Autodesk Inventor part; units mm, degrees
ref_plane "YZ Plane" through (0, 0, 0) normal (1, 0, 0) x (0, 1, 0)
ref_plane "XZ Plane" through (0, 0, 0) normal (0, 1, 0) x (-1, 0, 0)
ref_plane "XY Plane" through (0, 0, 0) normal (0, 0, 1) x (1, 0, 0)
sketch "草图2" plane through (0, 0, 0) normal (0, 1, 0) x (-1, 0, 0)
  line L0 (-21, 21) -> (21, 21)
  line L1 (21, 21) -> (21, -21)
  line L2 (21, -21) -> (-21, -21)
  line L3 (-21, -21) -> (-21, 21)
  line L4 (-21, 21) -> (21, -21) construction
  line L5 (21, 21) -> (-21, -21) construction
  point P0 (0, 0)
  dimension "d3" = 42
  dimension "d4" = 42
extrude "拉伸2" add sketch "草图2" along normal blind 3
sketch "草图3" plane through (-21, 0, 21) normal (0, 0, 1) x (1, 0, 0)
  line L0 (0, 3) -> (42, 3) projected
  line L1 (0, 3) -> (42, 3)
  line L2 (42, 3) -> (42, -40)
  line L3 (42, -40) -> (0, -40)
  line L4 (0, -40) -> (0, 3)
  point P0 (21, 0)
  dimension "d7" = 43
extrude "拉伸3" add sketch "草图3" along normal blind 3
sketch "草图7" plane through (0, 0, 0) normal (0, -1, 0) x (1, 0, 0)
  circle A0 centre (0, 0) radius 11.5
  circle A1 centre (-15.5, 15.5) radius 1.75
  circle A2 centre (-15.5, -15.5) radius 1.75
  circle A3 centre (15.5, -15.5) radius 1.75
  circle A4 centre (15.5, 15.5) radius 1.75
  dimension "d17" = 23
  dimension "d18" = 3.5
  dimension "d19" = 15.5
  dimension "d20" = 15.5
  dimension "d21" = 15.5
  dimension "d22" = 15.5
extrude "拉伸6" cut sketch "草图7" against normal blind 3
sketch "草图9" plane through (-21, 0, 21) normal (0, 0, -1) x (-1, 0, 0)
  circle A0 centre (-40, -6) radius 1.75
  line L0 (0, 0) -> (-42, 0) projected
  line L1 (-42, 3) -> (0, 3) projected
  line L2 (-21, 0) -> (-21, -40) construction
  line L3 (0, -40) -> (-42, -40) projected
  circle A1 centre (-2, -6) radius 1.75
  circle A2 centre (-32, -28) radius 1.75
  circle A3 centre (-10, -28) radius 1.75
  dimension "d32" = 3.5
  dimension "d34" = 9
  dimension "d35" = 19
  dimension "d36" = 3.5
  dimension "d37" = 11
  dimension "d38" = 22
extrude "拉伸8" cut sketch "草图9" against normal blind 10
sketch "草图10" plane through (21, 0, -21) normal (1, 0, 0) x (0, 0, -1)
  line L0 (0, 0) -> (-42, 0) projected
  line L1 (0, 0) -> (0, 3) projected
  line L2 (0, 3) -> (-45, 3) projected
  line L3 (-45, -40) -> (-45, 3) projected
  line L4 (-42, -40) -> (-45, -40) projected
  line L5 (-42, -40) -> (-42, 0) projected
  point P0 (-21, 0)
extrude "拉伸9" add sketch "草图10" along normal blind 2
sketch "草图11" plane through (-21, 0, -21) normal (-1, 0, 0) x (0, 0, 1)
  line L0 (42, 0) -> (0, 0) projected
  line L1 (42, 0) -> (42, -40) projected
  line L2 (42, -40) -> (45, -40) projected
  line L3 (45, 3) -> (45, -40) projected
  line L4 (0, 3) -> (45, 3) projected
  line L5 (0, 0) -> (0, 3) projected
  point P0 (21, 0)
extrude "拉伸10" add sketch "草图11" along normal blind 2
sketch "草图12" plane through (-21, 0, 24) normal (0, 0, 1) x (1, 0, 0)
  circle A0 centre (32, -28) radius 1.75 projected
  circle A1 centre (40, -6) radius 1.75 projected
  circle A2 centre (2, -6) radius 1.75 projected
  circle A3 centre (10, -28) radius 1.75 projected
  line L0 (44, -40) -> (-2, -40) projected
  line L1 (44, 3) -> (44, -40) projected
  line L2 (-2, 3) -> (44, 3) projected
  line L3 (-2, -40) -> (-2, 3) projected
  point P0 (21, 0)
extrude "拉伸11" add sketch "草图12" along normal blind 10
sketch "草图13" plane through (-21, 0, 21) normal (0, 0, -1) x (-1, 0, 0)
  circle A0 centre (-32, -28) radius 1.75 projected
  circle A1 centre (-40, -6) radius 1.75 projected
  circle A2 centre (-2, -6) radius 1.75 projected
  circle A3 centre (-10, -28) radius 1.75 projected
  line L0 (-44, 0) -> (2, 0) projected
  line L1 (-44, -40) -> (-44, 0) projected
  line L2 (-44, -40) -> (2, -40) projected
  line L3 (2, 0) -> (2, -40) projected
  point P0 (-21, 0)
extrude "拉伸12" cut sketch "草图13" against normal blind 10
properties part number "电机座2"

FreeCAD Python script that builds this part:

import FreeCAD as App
import Part
import Sketcher
from FreeCAD import Vector
Q = App.Units.Quantity


def add_polygon(sketch, points):
    """Adds a closed chain of lines whose ends are joined by coincident constraints."""
    first, n = sketch.GeometryCount, len(points)
    for a, b in zip(points, points[1:] + points[:1]):
        sketch.addGeometry(Part.LineSegment(App.Vector(*a, 0), App.Vector(*b, 0)), False)
    for i in range(n):
        sketch.addConstraint(Sketcher.Constraint("Coincident", first + i, 2, first + (i + 1) % n, 1))

doc = App.newDocument("Part")
body = doc.addObject("PartDesign::Body", "Body")

# Sketch on XZ plane
sketch1 = body.newObject("Sketcher::SketchObject", "Sketch")
sketch1.AttachmentSupport = (doc.getObject("XZ_Plane"), [""])
sketch1.MapMode = "FlatFace"
add_polygon(sketch1, [(-21, 21), (21, 21), (21, -21), (-21, -21)])  # lines 0-3
sketch1.addConstraint([
    Sketcher.Constraint("Horizontal", 0),
    Sketcher.Constraint("Vertical", 1),
    Sketcher.Constraint("Horizontal", 2),
    Sketcher.Constraint("Vertical", 3),
    Sketcher.Constraint("Symmetric", 0, 2, 2, 2, -1, 1),
    Sketcher.Constraint("Equal", 2, 1),
    Sketcher.Constraint("DistanceX", 0, 1, 0, 2, Q("42 mm")),
])
pad1 = body.newObject("PartDesign::Pad", "Pad")
pad1.Profile = sketch1
pad1.Length = 3
pad1.Reversed = True

# Sketch on XY plane
sketch2 = body.newObject("Sketcher::SketchObject", "Sketch001")
sketch2.AttachmentSupport = (doc.getObject("XY_Plane"), [""])
sketch2.MapMode = "FlatFace"
sketch2.AttachmentOffset = App.Placement(Vector(0, 0, 21), App.Rotation())
add_polygon(sketch2, [(21, 3), (-21, 3), (-21, -40), (21, -40)])  # lines 0-3
sketch2.addConstraint([
    Sketcher.Constraint("Horizontal", 0),
    Sketcher.Constraint("Vertical", 1),
    Sketcher.Constraint("Horizontal", 2),
    Sketcher.Constraint("Vertical", 3),
    Sketcher.Constraint("DistanceY", 1, 2, 1, 1, Q("43 mm")),
    Sketcher.Constraint("DistanceX", 0, 2, 0, 1, Q("42 mm")),
    Sketcher.Constraint("DistanceX", 0, 2, -1, 1, Q("21 mm")),
    Sketcher.Constraint("DistanceY", -1, 1, 0, 2, Q("3 mm")),
])
pad2 = body.newObject("PartDesign::Pad", "Pad001")
pad2.Profile = sketch2
pad2.Length = 3

# Sketch on XZ plane
sketch3 = body.newObject("Sketcher::SketchObject", "Sketch002")
sketch3.AttachmentSupport = (doc.getObject("XZ_Plane"), [""])
sketch3.MapMode = "FlatFace"
sketch3.addGeometry([
    Part.Circle(Vector(0, 0, 0), Vector(0, 0, 1), 11.5),  # 0
    Part.Circle(Vector(-15.5, 15.5, 0), Vector(0, 0, 1), 1.8),  # 1
    Part.Circle(Vector(-15.5, -15.5, 0), Vector(0, 0, 1), 1.8),  # 2
    Part.Circle(Vector(15.5, -15.5, 0), Vector(0, 0, 1), 1.8),  # 3
    Part.Circle(Vector(15.5, 15.5, 0), Vector(0, 0, 1), 1.8),  # 4
], False)
sketch3.addConstraint([
    Sketcher.Constraint("Coincident", 0, 3, -1, 1),
    Sketcher.Constraint("Equal", 1, 2),
    Sketcher.Constraint("Equal", 2, 3),
    Sketcher.Constraint("Equal", 3, 4),
    Sketcher.Constraint("Symmetric", 1, 3, 3, 3, -1, 1),
    Sketcher.Constraint("Symmetric", 2, 3, 4, 3, -1, 1),
    Sketcher.Constraint("Symmetric", 2, 3, 3, 3, -2),
    Sketcher.Constraint("Diameter", 0, Q("23 mm")),
    Sketcher.Constraint("Diameter", 1, Q("3.5 mm")),
    Sketcher.Constraint("DistanceX", 1, 3, -1, 1, Q("15.5 mm")),
    Sketcher.Constraint("DistanceY", -1, 1, 1, 3, Q("15.5 mm")),
])
pocket1 = body.newObject("PartDesign::Pocket", "Pocket")
pocket1.Profile = sketch3
pocket1.Length = 3

# Sketch on XY plane
sketch4 = body.newObject("Sketcher::SketchObject", "Sketch003")
sketch4.AttachmentSupport = (doc.getObject("XY_Plane"), [""])
sketch4.MapMode = "FlatFace"
sketch4.AttachmentOffset = App.Placement(Vector(0, 0, 21), App.Rotation())
sketch4.addGeometry([
    Part.Circle(Vector(19, -6, 0), Vector(0, 0, 1), 1.8),
    Part.Circle(Vector(-19, -6, 0), Vector(0, 0, 1), 1.8),
    Part.Circle(Vector(11, -28, 0), Vector(0, 0, 1), 1.8),
    Part.Circle(Vector(-11, -28, 0), Vector(0, 0, 1), 1.8),
], False)
sketch4.addConstraint([
    Sketcher.Constraint("Equal", 0, 1),
    Sketcher.Constraint("Equal", 1, 2),
    Sketcher.Constraint("Equal", 2, 3),
    Sketcher.Constraint("Symmetric", 0, 3, 1, 3, -2),
    Sketcher.Constraint("Symmetric", 2, 3, 3, 3, -2),
    Sketcher.Constraint("Diameter", 0, Q("3.5 mm")),
    Sketcher.Constraint("DistanceX", -1, 1, 0, 3, Q("19 mm")),
    Sketcher.Constraint("DistanceX", -1, 1, 2, 3, Q("11 mm")),
    Sketcher.Constraint("DistanceY", 2, 3, 0, 3, Q("22 mm")),
    Sketcher.Constraint("DistanceY", 0, 3, -1, 1, Q("6 mm")),
])
pocket2 = body.newObject("PartDesign::Pocket", "Pocket001")
pocket2.Profile = sketch4
pocket2.Length = 10
pocket2.Reversed = True

# Sketch on YZ plane
sketch5 = body.newObject("Sketcher::SketchObject", "Sketch004")
sketch5.AttachmentSupport = (doc.getObject("YZ_Plane"), [""])
sketch5.MapMode = "FlatFace"
sketch5.AttachmentOffset = App.Placement(Vector(0, 0, 21), App.Rotation())
add_polygon(sketch5, [(0, 21), (0, -21), (3, -21), (3, 24), (-40, 24), (-40, 21)])  # lines 0-5
sketch5.addConstraint([
    Sketcher.Constraint("Vertical", 0),
    Sketcher.Constraint("Horizontal", 1),
    Sketcher.Constraint("Vertical", 2),
    Sketcher.Constraint("Horizontal", 3),
    Sketcher.Constraint("Vertical", 4),
    Sketcher.Constraint("Horizontal", 5),
    Sketcher.Constraint("Symmetric", 0, 2, 5, 2, -1, 1),
    Sketcher.Constraint("Equal", 1, 4),
    Sketcher.Constraint("DistanceX", 1, 1, 1, 2, Q("3 mm")),
    Sketcher.Constraint("DistanceX", 3, 2, 3, 1, Q("43 mm")),
    Sketcher.Constraint("DistanceY", 0, 2, 0, 1, Q("42 mm")),
])
pad3 = body.newObject("PartDesign::Pad", "Pad002")
pad3.Profile = sketch5
pad3.Length = 2

# Sketch on YZ plane
sketch6 = body.newObject("Sketcher::SketchObject", "Sketch005")
sketch6.AttachmentSupport = (doc.getObject("YZ_Plane"), [""])
sketch6.MapMode = "FlatFace"
sketch6.AttachmentOffset = App.Placement(Vector(0, 0, -21), App.Rotation())
add_polygon(sketch6, [(0, -21), (0, 21), (-40, 21), (-40, 24), (3, 24), (3, -21)])  # lines 0-5
sketch6.addConstraint([
    Sketcher.Constraint("Vertical", 0),
    Sketcher.Constraint("Horizontal", 1),
    Sketcher.Constraint("Vertical", 2),
    Sketcher.Constraint("Horizontal", 3),
    Sketcher.Constraint("Vertical", 4),
    Sketcher.Constraint("Horizontal", 5),
    Sketcher.Constraint("Symmetric", 0, 2, 5, 2, -1, 1),
    Sketcher.Constraint("Equal", 5, 2),
    Sketcher.Constraint("DistanceX", 1, 2, 1, 1, Q("40 mm")),
    Sketcher.Constraint("DistanceX", 3, 1, 3, 2, Q("43 mm")),
    Sketcher.Constraint("DistanceY", 0, 1, 0, 2, Q("42 mm")),
])
pad4 = body.newObject("PartDesign::Pad", "Pad003")
pad4.Profile = sketch6
pad4.Length = 2
pad4.Reversed = True

# Sketch on XY plane
sketch7 = body.newObject("Sketcher::SketchObject", "Sketch006")
sketch7.AttachmentSupport = (doc.getObject("XY_Plane"), [""])
sketch7.MapMode = "FlatFace"
sketch7.AttachmentOffset = App.Placement(Vector(0, 0, 24), App.Rotation())
add_polygon(sketch7, [(-23, -40), (23, -40), (23, 3), (-23, 3)])  # lines 0-3
sketch7.addGeometry(Part.Circle(Vector(-11, -28, 0), Vector(0, 0, 1), 1.8), False)  # 4
sketch7.addGeometry(Part.Circle(Vector(11, -28, 0), Vector(0, 0, 1), 1.8), False)  # 5
sketch7.addGeometry(Part.Circle(Vector(-19, -6, 0), Vector(0, 0, 1), 1.8), False)  # 6
sketch7.addGeometry(Part.Circle(Vector(19, -6, 0), Vector(0, 0, 1), 1.8), False)  # 7
sketch7.addConstraint([
    Sketcher.Constraint("Horizontal", 0),
    Sketcher.Constraint("Vertical", 1),
    Sketcher.Constraint("Horizontal", 2),
    Sketcher.Constraint("Vertical", 3),
    Sketcher.Constraint("Equal", 4, 5),
    Sketcher.Constraint("Equal", 5, 6),
    Sketcher.Constraint("Equal", 6, 7),
    Sketcher.Constraint("Symmetric", 4, 3, 5, 3, -2),
    Sketcher.Constraint("Symmetric", 6, 3, 7, 3, -2),
    Sketcher.Constraint("Diameter", 4, Q("3.5 mm")),
    Sketcher.Constraint("DistanceX", 0, 1, 0, 2, Q("46 mm")),
    Sketcher.Constraint("DistanceY", 1, 1, 1, 2, Q("43 mm")),
    Sketcher.Constraint("DistanceX", 4, 3, -1, 1, Q("11 mm")),
    Sketcher.Constraint("DistanceY", 4, 3, -1, 1, Q("28 mm")),
    Sketcher.Constraint("DistanceX", 6, 3, -1, 1, Q("19 mm")),
    Sketcher.Constraint("DistanceY", 6, 3, -1, 1, Q("6 mm")),
    Sketcher.Constraint("DistanceX", -1, 1, 0, 2, Q("23 mm")),
    Sketcher.Constraint("DistanceY", 0, 2, -1, 1, Q("40 mm")),
])
pad5 = body.newObject("PartDesign::Pad", "Pad004")
pad5.Profile = sketch7
pad5.Length = 10

# Sketch on XY plane
sketch8 = body.newObject("Sketcher::SketchObject", "Sketch007")
sketch8.AttachmentSupport = (doc.getObject("XY_Plane"), [""])
sketch8.MapMode = "FlatFace"
sketch8.AttachmentOffset = App.Placement(Vector(0, 0, 21), App.Rotation())
add_polygon(sketch8, [(-23, 0), (23, 0), (23, -40), (-23, -40)])  # lines 0-3
sketch8.addGeometry(Part.Circle(Vector(11, -28, 0), Vector(0, 0, 1), 1.8), False)  # 4
sketch8.addGeometry(Part.Circle(Vector(-11, -28, 0), Vector(0, 0, 1), 1.8), False)  # 5
sketch8.addGeometry(Part.Circle(Vector(19, -6, 0), Vector(0, 0, 1), 1.8), False)  # 6
sketch8.addGeometry(Part.Circle(Vector(-19, -6, 0), Vector(0, 0, 1), 1.8), False)  # 7
sketch8.addConstraint([
    Sketcher.Constraint("Horizontal", 0),
    Sketcher.Constraint("Vertical", 1),
    Sketcher.Constraint("Horizontal", 2),
    Sketcher.Constraint("Vertical", 3),
    Sketcher.Constraint("Equal", 4, 5),
    Sketcher.Constraint("Equal", 5, 6),
    Sketcher.Constraint("Equal", 6, 7),
    Sketcher.Constraint("Symmetric", 0, 2, 3, 2, -1, 1),
    Sketcher.Constraint("Symmetric", 4, 3, 5, 3, -2),
    Sketcher.Constraint("Symmetric", 6, 3, 7, 3, -2),
    Sketcher.Constraint("Diameter", 4, Q("3.5 mm")),
    Sketcher.Constraint("DistanceX", 0, 1, 0, 2, Q("46 mm")),
    Sketcher.Constraint("DistanceY", 1, 2, 1, 1, Q("40 mm")),
    Sketcher.Constraint("DistanceX", -1, 1, 4, 3, Q("11 mm")),
    Sketcher.Constraint("DistanceY", 4, 3, -1, 1, Q("28 mm")),
    Sketcher.Constraint("DistanceX", -1, 1, 6, 3, Q("19 mm")),
    Sketcher.Constraint("DistanceY", 6, 3, -1, 1, Q("6 mm")),
])
pocket3 = body.newObject("PartDesign::Pocket", "Pocket002")
pocket3.Profile = sketch8
pocket3.Length = 10
pocket3.Reversed = True

doc.recompute()
